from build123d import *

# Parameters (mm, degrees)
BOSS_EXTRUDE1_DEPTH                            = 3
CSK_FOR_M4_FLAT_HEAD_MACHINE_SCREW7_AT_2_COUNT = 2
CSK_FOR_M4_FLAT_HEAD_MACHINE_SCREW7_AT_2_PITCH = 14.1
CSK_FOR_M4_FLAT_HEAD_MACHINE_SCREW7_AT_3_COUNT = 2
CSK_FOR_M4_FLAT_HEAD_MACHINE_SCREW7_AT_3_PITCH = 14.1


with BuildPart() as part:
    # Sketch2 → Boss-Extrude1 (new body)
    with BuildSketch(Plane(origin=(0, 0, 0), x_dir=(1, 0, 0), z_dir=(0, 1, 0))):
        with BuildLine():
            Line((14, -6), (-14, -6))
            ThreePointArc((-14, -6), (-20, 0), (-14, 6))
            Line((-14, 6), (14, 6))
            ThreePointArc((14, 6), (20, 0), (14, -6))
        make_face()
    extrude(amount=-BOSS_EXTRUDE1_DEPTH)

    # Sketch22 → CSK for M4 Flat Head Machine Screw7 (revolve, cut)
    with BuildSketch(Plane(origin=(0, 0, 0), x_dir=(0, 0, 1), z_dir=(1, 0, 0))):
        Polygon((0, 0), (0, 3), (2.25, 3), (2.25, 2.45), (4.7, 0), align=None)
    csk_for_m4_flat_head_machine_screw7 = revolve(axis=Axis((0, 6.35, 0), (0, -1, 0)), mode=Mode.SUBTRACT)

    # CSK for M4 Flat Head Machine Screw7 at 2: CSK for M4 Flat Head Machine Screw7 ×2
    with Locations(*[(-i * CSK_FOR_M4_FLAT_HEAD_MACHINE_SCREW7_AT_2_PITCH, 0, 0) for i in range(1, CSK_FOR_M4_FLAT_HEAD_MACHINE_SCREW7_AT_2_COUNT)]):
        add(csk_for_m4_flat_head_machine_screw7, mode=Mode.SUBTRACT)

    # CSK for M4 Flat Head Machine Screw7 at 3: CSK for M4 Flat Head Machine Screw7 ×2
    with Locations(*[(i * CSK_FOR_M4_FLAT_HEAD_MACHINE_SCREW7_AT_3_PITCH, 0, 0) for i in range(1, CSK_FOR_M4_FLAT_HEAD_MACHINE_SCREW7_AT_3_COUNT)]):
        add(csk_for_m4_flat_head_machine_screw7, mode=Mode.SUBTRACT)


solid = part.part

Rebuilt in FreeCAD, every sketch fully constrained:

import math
import FreeCAD as App
import Part
import Sketcher
from FreeCAD import Vector
Q = App.Units.Quantity

doc = App.newDocument("Part")
body = doc.addObject("PartDesign::Body", "Body")

sketch1 = body.newObject("Sketcher::SketchObject", "Sketch")
sketch1.AttachmentSupport = (doc.getObject("XZ_Plane"), [""])
sketch1.MapMode = "FlatFace"
sketch1.addGeometry([
    Part.LineSegment(Vector(-14, 6, 0), Vector(14, 6, 0)),
    Part.ArcOfCircle(Part.Circle(Vector(14, 0, 0), Vector(0, 0, 1), 6), math.radians(-90), math.radians(90)),
    Part.LineSegment(Vector(14, -6, 0), Vector(-14, -6, 0)),
    Part.ArcOfCircle(Part.Circle(Vector(-14, 0, 0), Vector(0, 0, 1), 6), math.radians(90), math.radians(270)),
], False)
sketch1.addConstraint([
    Sketcher.Constraint("Tangent", 0, 2, 1, 2),
    Sketcher.Constraint("Tangent", 1, 1, 2, 1),
    Sketcher.Constraint("Tangent", 2, 2, 3, 2),
    Sketcher.Constraint("Tangent", 3, 1, 0, 1),
    Sketcher.Constraint("Horizontal", 0),
    Sketcher.Constraint("Horizontal", 2),
    Sketcher.Constraint("Symmetric", 1, 3, 3, 3, -1, 1),
    Sketcher.Constraint("Radius", 1, 6.0),
    Sketcher.Constraint("DistanceX", 0, 1, 0, 2, 28.0),
])
pad1 = body.newObject("PartDesign::Pad", "Pad")
pad1.Profile = sketch1
pad1.Length = 3

sketch2 = body.newObject("Sketcher::SketchObject", "Sketch001")
sketch2.AttachmentSupport = (doc.getObject("YZ_Plane"), [""])
sketch2.MapMode = "FlatFace"
sketch2.addGeometry([
    Part.LineSegment(Vector(-3, 0, 0), Vector(0, 0, 0)),
    Part.LineSegment(Vector(0, 0, 0), Vector(0, 4.7, 0)),
    Part.LineSegment(Vector(0, 4.7, 0), Vector(-2.45, 2.25, 0)),
    Part.LineSegment(Vector(-2.45, 2.25, 0), Vector(-3, 2.25, 0)),
    Part.LineSegment(Vector(-3, 2.25, 0), Vector(-3, 0, 0)),
], False)
sketch2.addConstraint([
    Sketcher.Constraint("Coincident", 0, 2, 1, 1),
    Sketcher.Constraint("Coincident", 1, 2, 2, 1),
    Sketcher.Constraint("Coincident", 2, 2, 3, 1),
    Sketcher.Constraint("Coincident", 3, 2, 4, 1),
    Sketcher.Constraint("Coincident", 4, 2, 0, 1),
    Sketcher.Constraint("Horizontal", 0),
    Sketcher.Constraint("Vertical", 1),
    Sketcher.Constraint("Horizontal", 3),
    Sketcher.Constraint("Vertical", 4),
    Sketcher.Constraint("Coincident", 0, 2, -1, 1),
    Sketcher.Constraint("DistanceX", 0, 1, 0, 2, 3.0),
    Sketcher.Constraint("Angle", 2, Q("-135 deg")),
    Sketcher.Constraint("DistanceY", 1, 1, 1, 2, 4.7),
    Sketcher.Constraint("DistanceX", 3, 2, 3, 1, 0.55),
])
groove = body.newObject("PartDesign::Groove", "Groove")
groove.Profile = sketch2
groove.ReferenceAxis = (sketch2, ["H_Axis"])
groove.Angle = 360
doc.recompute()

linearpattern = body.newObject("PartDesign::LinearPattern", "LinearPattern")
linearpattern.Originals = [groove]
linearpattern.Direction = (doc.getObject("X_Axis"), [""])
linearpattern.Mode = "offset"
linearpattern.Offset = 14.1
linearpattern.Occurrences = 2
linearpattern.Reversed = True
body.Tip = linearpattern
doc.recompute()

linearpattern2 = body.newObject("PartDesign::LinearPattern", "LinearPattern001")
linearpattern2.Originals = [groove]
linearpattern2.Direction = (doc.getObject("X_Axis"), [""])
linearpattern2.Mode = "offset"
linearpattern2.Offset = 14.1
linearpattern2.Occurrences = 2
body.Tip = linearpattern2

doc.recompute()
